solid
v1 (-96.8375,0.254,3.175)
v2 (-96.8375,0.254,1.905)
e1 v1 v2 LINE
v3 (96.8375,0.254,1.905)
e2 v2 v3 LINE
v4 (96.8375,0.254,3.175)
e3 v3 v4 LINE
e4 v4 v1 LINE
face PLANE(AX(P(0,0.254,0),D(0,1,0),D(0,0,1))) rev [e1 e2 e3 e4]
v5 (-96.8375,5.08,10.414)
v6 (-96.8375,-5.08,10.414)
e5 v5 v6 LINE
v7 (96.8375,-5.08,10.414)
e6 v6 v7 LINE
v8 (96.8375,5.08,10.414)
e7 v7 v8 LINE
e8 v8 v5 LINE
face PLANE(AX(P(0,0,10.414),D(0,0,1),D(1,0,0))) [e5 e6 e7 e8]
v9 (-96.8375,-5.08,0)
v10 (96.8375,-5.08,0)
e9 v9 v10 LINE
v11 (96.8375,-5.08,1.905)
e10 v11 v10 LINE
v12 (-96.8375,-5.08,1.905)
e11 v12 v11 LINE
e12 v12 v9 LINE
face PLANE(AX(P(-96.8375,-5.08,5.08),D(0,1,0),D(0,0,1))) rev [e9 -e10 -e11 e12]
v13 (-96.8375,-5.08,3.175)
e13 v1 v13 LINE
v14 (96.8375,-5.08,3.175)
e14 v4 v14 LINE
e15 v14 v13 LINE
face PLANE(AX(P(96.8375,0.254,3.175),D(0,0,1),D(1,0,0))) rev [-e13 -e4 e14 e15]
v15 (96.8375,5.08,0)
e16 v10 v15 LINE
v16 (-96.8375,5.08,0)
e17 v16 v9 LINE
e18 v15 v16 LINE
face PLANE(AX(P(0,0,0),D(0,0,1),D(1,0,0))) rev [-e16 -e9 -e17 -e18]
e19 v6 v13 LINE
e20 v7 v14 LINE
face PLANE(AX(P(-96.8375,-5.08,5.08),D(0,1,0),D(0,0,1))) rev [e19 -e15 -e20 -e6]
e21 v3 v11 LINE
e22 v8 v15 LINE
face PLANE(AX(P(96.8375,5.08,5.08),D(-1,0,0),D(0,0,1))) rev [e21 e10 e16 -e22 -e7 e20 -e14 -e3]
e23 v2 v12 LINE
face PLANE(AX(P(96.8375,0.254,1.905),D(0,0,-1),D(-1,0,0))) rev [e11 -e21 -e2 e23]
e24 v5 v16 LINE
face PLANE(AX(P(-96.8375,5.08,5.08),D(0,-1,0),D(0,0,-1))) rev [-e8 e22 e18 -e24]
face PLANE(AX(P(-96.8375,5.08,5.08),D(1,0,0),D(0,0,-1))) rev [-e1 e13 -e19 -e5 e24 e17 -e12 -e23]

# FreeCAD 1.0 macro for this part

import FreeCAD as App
import Part
import Sketcher

V = App.Vector
Q = App.Units.Quantity


def add_polygon(sketch, points):
    """Adds a closed chain of lines whose ends are joined by coincident constraints."""
    first, n = sketch.GeometryCount, len(points)
    for a, b in zip(points, points[1:] + points[:1]):
        sketch.addGeometry(Part.LineSegment(App.Vector(*a, 0), App.Vector(*b, 0)), False)
    for i in range(n):
        sketch.addConstraint(Sketcher.Constraint("Coincident", first + i, 2, first + (i + 1) % n, 1))

doc = App.newDocument("Part")
body = doc.addObject("PartDesign::Body", "Body")

# Sketch on XY plane
sketch1 = body.newObject("Sketcher::SketchObject", "Sketch")
sketch1.AttachmentSupport = (doc.getObject("XY_Plane"), [""])
sketch1.MapMode = "FlatFace"
add_polygon(sketch1, [(-97, 5), (-97, -5), (97, -5), (97, 5)])  # lines 0-3
sketch1.addConstraint([
    Sketcher.Constraint("Vertical", 0),
    Sketcher.Constraint("Horizontal", 1),
    Sketcher.Constraint("Vertical", 2),
    Sketcher.Constraint("Horizontal", 3),
    Sketcher.Constraint("Symmetric", 0, 2, 2, 2, -1, 1),
    Sketcher.Constraint("DistanceY", 0, 2, 0, 1, Q("0.4 in")),
    Sketcher.Constraint("DistanceX", 1, 1, 1, 2, Q("7.625 in")),
])
pad1 = body.newObject("PartDesign::Pad", "Pad")
pad1.Profile = sketch1
pad1.Length = Q("0.2 in")

# Sketch on XZ plane
sketch2 = body.newObject("Sketcher::SketchObject", "Sketch001")
sketch2.AttachmentSupport = (doc.getObject("XZ_Plane"), [""])
sketch2.MapMode = "FlatFace"
sketch2.AttachmentOffset = App.Placement(V(0, 0, 0.2 * 25.4), App.Rotation())
add_polygon(sketch2, [(-96.8, 3.2), (-96.8, 1.9), (96.8, 1.9), (96.8, 3.2)])  # lines 0-3
sketch2.addConstraint([
    Sketcher.Constraint("Vertical", 0),
    Sketcher.Constraint("Horizontal", 1),
    Sketcher.Constraint("Vertical", 2),
    Sketcher.Constraint("Horizontal", 3),
    Sketcher.Constraint("DistanceY", 0, 2, 0, 1, Q("0.05 in")),
    Sketcher.Constraint("DistanceX", 1, 1, 1, 2, Q("7.625 in")),
    Sketcher.Constraint("DistanceX", 0, 2, -1, 1, Q("3.8125 in")),
    Sketcher.Constraint("DistanceY", -1, 1, 0, 2, Q("0.075 in")),
])
pocket1 = body.newObject("PartDesign::Pocket", "Pocket")
pocket1.Profile = sketch2
pocket1.Length = Q("0.21 in")

# Sketch on XY plane
sketch3 = body.newObject("Sketcher::SketchObject", "Sketch002")
sketch3.AttachmentSupport = (doc.getObject("XY_Plane"), [""])
sketch3.MapMode = "FlatFace"
sketch3.AttachmentOffset = App.Placement(V(0, 0, 0.2 * 25.4), App.Rotation())
add_polygon(sketch3, [(-97, 5), (-97, -5), (97, -5), (97, 5)])  # lines 0-3
sketch3.addConstraint([
    Sketcher.Constraint("Vertical", 0),
    Sketcher.Constraint("Horizontal", 1),
    Sketcher.Constraint("Vertical", 2),
    Sketcher.Constraint("Horizontal", 3),
    Sketcher.Constraint("Symmetric", 0, 2, 2, 2, -1, 1),
    Sketcher.Constraint("DistanceY", 0, 2, 0, 1, Q("0.4 in")),
    Sketcher.Constraint("DistanceX", 1, 1, 1, 2, Q("7.625 in")),
])
pad2 = body.newObject("PartDesign::Pad", "Pad001")
pad2.Profile = sketch3
pad2.Length = Q("0.21 in")

doc.recompute()
